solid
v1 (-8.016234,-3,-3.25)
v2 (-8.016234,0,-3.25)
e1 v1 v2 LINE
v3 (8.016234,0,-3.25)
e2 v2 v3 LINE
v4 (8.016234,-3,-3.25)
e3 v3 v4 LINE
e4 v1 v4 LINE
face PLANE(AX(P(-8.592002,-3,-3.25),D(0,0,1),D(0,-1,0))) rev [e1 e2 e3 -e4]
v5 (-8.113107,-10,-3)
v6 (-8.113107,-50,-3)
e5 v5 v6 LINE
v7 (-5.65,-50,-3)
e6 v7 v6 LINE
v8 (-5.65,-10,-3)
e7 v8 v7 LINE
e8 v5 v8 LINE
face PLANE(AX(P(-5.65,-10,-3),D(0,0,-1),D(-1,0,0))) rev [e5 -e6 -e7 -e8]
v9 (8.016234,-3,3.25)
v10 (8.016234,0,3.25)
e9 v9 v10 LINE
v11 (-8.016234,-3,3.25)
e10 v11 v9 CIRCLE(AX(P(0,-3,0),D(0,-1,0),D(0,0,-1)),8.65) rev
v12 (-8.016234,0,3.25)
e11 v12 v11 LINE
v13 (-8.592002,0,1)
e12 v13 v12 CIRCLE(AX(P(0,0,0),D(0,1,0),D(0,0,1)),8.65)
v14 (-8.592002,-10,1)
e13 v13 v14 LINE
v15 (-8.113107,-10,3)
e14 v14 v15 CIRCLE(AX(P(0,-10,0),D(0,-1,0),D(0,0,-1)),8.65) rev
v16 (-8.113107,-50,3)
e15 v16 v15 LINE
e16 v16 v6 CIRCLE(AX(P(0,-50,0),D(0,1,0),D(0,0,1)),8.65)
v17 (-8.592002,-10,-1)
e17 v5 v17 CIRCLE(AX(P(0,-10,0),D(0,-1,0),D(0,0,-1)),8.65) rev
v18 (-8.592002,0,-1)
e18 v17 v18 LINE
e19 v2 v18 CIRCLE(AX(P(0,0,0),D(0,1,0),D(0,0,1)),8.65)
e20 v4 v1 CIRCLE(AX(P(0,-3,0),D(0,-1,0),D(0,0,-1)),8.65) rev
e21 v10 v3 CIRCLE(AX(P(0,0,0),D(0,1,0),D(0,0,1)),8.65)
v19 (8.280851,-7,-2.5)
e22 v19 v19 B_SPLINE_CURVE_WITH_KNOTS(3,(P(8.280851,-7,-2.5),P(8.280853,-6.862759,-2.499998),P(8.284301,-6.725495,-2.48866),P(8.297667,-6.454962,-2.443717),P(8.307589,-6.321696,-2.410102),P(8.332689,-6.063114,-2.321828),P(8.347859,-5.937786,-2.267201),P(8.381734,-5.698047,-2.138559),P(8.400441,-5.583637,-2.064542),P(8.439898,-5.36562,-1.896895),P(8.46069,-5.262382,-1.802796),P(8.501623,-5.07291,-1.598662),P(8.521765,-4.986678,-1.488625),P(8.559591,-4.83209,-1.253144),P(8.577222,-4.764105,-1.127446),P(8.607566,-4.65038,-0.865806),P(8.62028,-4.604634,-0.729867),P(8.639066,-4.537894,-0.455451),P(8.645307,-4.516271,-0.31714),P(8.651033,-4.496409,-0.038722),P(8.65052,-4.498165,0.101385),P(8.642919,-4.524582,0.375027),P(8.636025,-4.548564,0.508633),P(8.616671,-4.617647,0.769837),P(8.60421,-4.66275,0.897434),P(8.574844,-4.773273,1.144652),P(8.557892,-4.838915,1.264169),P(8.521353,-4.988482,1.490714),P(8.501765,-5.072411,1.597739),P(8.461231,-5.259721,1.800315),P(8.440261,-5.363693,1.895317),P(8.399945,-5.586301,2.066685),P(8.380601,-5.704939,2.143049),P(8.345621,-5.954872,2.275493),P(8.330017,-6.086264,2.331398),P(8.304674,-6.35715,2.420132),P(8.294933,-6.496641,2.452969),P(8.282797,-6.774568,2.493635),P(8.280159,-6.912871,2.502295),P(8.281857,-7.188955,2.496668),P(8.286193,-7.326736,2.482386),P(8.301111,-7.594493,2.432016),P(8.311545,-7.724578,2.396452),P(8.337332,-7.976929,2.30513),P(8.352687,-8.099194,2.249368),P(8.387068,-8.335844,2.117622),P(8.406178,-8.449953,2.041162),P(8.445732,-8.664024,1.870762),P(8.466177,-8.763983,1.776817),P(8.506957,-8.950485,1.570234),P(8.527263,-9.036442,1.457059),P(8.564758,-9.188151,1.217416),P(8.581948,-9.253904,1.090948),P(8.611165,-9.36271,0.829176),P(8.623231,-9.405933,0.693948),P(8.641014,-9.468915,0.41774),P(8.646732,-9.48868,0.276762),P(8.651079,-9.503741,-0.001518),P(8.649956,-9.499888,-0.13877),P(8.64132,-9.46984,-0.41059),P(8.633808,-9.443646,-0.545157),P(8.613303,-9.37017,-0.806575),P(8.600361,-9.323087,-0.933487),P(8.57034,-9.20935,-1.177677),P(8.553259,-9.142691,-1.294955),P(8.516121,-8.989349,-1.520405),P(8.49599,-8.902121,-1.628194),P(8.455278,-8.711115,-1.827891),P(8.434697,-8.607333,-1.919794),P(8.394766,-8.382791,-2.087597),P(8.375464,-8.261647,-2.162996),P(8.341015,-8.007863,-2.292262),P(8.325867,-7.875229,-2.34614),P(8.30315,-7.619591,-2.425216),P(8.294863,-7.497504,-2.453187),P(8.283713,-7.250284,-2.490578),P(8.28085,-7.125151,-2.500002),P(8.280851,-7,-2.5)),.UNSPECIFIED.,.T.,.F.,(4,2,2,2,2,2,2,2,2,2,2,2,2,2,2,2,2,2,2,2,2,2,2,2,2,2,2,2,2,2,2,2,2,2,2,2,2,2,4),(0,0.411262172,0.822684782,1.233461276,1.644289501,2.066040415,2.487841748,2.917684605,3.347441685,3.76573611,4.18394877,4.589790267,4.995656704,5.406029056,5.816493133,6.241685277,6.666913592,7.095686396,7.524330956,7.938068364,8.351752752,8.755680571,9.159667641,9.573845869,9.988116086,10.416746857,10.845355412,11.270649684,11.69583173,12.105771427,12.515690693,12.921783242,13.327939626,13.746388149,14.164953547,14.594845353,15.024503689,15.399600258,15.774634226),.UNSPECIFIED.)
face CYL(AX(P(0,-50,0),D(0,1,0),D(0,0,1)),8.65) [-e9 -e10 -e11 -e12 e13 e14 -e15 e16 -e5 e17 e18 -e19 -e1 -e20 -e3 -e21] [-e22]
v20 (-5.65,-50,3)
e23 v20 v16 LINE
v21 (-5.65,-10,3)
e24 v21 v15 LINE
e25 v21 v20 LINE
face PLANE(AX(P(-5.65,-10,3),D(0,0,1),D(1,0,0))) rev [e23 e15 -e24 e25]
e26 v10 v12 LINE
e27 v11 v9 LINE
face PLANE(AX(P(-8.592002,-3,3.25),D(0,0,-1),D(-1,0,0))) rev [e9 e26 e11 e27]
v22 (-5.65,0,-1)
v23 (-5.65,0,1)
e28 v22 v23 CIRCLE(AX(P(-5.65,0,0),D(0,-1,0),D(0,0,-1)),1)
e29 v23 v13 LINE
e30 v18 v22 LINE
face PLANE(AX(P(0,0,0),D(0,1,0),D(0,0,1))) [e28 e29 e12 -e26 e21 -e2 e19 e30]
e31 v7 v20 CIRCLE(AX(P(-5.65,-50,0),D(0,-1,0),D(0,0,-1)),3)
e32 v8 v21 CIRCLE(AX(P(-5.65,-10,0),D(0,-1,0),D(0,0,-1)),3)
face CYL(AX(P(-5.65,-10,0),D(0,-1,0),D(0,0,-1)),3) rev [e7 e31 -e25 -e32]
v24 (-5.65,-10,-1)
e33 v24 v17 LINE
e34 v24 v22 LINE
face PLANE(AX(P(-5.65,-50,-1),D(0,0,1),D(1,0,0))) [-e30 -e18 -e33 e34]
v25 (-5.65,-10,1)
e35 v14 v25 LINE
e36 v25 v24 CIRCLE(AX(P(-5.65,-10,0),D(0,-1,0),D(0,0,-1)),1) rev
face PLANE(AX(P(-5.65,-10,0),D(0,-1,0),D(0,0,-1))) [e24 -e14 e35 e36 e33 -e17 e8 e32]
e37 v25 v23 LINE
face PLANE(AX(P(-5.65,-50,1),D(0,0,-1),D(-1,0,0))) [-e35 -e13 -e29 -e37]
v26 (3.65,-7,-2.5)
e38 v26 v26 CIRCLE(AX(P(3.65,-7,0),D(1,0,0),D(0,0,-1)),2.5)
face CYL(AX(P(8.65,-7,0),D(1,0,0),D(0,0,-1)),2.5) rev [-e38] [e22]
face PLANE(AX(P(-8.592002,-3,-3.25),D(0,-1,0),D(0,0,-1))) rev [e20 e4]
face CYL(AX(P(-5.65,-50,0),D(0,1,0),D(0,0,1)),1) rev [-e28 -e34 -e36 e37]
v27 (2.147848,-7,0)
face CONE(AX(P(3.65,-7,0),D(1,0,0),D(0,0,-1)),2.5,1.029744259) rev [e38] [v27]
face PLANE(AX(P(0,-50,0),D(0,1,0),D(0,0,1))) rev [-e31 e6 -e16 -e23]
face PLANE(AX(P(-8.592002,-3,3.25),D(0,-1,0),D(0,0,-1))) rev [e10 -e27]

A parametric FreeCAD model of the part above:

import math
import FreeCAD as App
import Part
import Sketcher
from FreeCAD import Vector


def add_polygon(sketch, points):
    """Adds a closed chain of lines whose ends are joined by coincident constraints."""
    first, n = sketch.GeometryCount, len(points)
    for a, b in zip(points, points[1:] + points[:1]):
        sketch.addGeometry(Part.LineSegment(App.Vector(*a, 0), App.Vector(*b, 0)), False)
    for i in range(n):
        sketch.addConstraint(Sketcher.Constraint("Coincident", first + i, 2, first + (i + 1) % n, 1))

doc = App.newDocument("Part")
body = doc.addObject("PartDesign::Body", "Body")

# Sketch on XZ plane
sketch1 = body.newObject("Sketcher::SketchObject", "Sketch")
sketch1.AttachmentSupport = (doc.getObject("XZ_Plane"), [""])
sketch1.MapMode = "FlatFace"
sketch1.addGeometry(Part.Circle(Vector(0, 0, 0), Vector(0, 0, 1), 9), False)
sketch1.addConstraint([
    Sketcher.Constraint("Coincident", 0, 3, -1, 1),
    Sketcher.Constraint("Diameter", 0, 17.3),
])
pad1 = body.newObject("PartDesign::Pad", "Pad")
pad1.Profile = sketch1
pad1.Length = 50

# Sketch on XZ plane
sketch2 = body.newObject("Sketcher::SketchObject", "Sketch001")
sketch2.AttachmentSupport = (doc.getObject("XZ_Plane"), [""])
sketch2.MapMode = "FlatFace"
sketch2.AttachmentOffset = App.Placement(Vector(0, 0, 50), App.Rotation())
sketch2.addGeometry([
    Part.LineSegment(Vector(-8.7, -3, 0), Vector(-5.7, -3, 0)),
    Part.ArcOfCircle(Part.Circle(Vector(-5.7, 0, 0), Vector(0, 0, 1), 3), math.radians(-90), math.radians(90)),
    Part.LineSegment(Vector(-5.7, 3, 0), Vector(-8.7, 3, 0)),
    Part.ArcOfCircle(Part.Circle(Vector(-8.7, 0, 0), Vector(0, 0, 1), 3), math.radians(90), math.radians(270)),
], False)
sketch2.addConstraint([
    Sketcher.Constraint("Tangent", 0, 2, 1, 1),
    Sketcher.Constraint("Tangent", 1, 2, 2, 1),
    Sketcher.Constraint("Tangent", 2, 2, 3, 1),
    Sketcher.Constraint("Tangent", 3, 2, 0, 1),
    Sketcher.Constraint("Horizontal", 0),
    Sketcher.Constraint("Horizontal", 2),
    Sketcher.Constraint("PointOnObject", 1, 3, -1),
    Sketcher.Constraint("Radius", 1, 3.0),
    Sketcher.Constraint("DistanceX", 0, 1, 0, 2, 3.0),
    Sketcher.Constraint("DistanceX", 1, 3, -1, 1, 5.65),
])
pocket1 = body.newObject("PartDesign::Pocket", "Pocket")
pocket1.Profile = sketch2
pocket1.Length = 40

# Sketch on XZ plane
sketch3 = body.newObject("Sketcher::SketchObject", "Sketch002")
sketch3.AttachmentSupport = (doc.getObject("XZ_Plane"), [""])
sketch3.MapMode = "FlatFace"
sketch3.addGeometry([
    Part.LineSegment(Vector(-8.7, -1, 0), Vector(-5.7, -1, 0)),
    Part.ArcOfCircle(Part.Circle(Vector(-5.7, 0, 0), Vector(0, 0, 1), 1), math.radians(-90), math.radians(90)),
    Part.LineSegment(Vector(-5.7, 1, 0), Vector(-8.7, 1, 0)),
    Part.ArcOfCircle(Part.Circle(Vector(-8.7, 0, 0), Vector(0, 0, 1), 1), math.radians(90), math.radians(270)),
], False)
sketch3.addConstraint([
    Sketcher.Constraint("Tangent", 0, 2, 1, 1),
    Sketcher.Constraint("Tangent", 1, 2, 2, 1),
    Sketcher.Constraint("Tangent", 2, 2, 3, 1),
    Sketcher.Constraint("Tangent", 3, 2, 0, 1),
    Sketcher.Constraint("Horizontal", 0),
    Sketcher.Constraint("Horizontal", 2),
    Sketcher.Constraint("PointOnObject", 1, 3, -1),
    Sketcher.Constraint("Radius", 1, 1.0),
    Sketcher.Constraint("DistanceX", 0, 1, 0, 2, 3.0),
    Sketcher.Constraint("DistanceX", 1, 3, -1, 1, 5.65),
])
pocket2 = body.newObject("PartDesign::Pocket", "Pocket001")
pocket2.Profile = sketch3
pocket2.Type = "ThroughAll"
pocket2.Reversed = True

# Sketch on YZ plane
sketch4 = body.newObject("Sketcher::SketchObject", "Sketch003")
sketch4.AttachmentSupport = (doc.getObject("YZ_Plane"), [""])
sketch4.MapMode = "FlatFace"
add_polygon(sketch4, [(0, -3.2), (-3, -3.2), (-3, -10.7), (0, -10.7)])  # lines 0-3
add_polygon(sketch4, [(0, 10.7), (-3, 10.7), (-3, 3.2), (0, 3.2)])  # lines 4-7
sketch4.addConstraint([
    Sketcher.Constraint("Horizontal", 0),
    Sketcher.Constraint("Vertical", 1),
    Sketcher.Constraint("Horizontal", 2),
    Sketcher.Constraint("Vertical", 3),
    Sketcher.Constraint("Horizontal", 4),
    Sketcher.Constraint("Vertical", 5),
    Sketcher.Constraint("Horizontal", 6),
    Sketcher.Constraint("Vertical", 7),
    Sketcher.Constraint("Symmetric", 3, 2, 6, 2, -1, 1),
    Sketcher.Constraint("Symmetric", 1, 2, 4, 2, -1),
    Sketcher.Constraint("PointOnObject", 2, 2, -2),
    Sketcher.Constraint("DistanceX", 0, 2, 0, 1, 3.0),
    Sketcher.Constraint("DistanceY", 1, 2, 1, 1, 7.4),
    Sketcher.Constraint("DistanceY", 0, 2, 4, 2, 13.9),
])
pocket3 = body.newObject("PartDesign::Pocket", "Pocket002")
pocket3.Profile = sketch4
pocket3.Type = "ThroughAll"
pocket3.Midplane = True

# Sketch on YZ plane
sketch5 = body.newObject("Sketcher::SketchObject", "Sketch004")
sketch5.AttachmentSupport = (doc.getObject("YZ_Plane"), [""])
sketch5.MapMode = "FlatFace"
sketch5.AttachmentOffset = App.Placement(Vector(0, 0, 8.65), App.Rotation())
sketch5.addGeometry(Part.Circle(Vector(-7, 0, 0), Vector(0, 0, 1), 2.5), False)
sketch5.addConstraint([
    Sketcher.Constraint("PointOnObject", 0, 3, -1),
    Sketcher.Constraint("Diameter", 0, 5.0),
    Sketcher.Constraint("DistanceX", 0, 3, -1, 1, 7.0),
])
doc.recompute()
hole = body.newObject("PartDesign::Hole", "Hole")
hole.Profile = sketch5
hole.ThreadType = "None"
hole.Diameter = 5
hole.DepthType = "Dimension"
hole.Depth = 5
hole.DrillPoint = "Angled"
hole.DrillPointAngle = 118

doc.recompute()
